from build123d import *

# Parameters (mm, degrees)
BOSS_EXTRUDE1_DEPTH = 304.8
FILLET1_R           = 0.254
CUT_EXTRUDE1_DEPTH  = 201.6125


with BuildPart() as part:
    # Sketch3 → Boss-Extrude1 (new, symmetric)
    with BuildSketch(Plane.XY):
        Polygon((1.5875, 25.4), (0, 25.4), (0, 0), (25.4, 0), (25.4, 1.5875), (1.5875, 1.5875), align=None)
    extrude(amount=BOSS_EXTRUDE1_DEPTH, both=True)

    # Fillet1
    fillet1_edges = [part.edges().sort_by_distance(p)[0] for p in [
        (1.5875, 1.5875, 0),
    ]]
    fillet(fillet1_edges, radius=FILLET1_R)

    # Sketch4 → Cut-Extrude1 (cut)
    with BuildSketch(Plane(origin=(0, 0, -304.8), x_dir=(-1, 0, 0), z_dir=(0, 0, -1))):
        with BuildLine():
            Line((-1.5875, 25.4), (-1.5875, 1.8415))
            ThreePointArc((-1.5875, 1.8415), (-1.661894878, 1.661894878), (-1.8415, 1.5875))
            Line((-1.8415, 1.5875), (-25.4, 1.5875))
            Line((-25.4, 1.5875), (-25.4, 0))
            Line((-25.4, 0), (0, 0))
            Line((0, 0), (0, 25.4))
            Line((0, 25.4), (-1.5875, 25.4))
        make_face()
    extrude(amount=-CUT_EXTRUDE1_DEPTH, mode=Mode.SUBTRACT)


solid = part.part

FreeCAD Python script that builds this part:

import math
import FreeCAD as App
import Part
import Sketcher

V = App.Vector
Q = App.Units.Quantity


def edges_at(feature, points):
    """Names of the edges that pass closest to the given points."""
    edges = feature.Shape.Edges
    near = lambda p: min(range(len(edges)), key=lambda i: edges[i].distToShape(Part.Vertex(*p))[0])
    return sorted({f"Edge{near(p) + 1}" for p in points})

doc = App.newDocument("Part")
body = doc.addObject("PartDesign::Body", "Body")

# Sketch on XY plane
sketch1 = body.newObject("Sketcher::SketchObject", "Sketch")
sketch1.AttachmentSupport = (doc.getObject("XY_Plane"), [""])
sketch1.MapMode = "FlatFace"
sketch1.addGeometry(Part.LineSegment(V(1.6, 25.4, 0), V(0, 25.4, 0)), False)
sketch1.addGeometry(Part.LineSegment(V(0, 25.4, 0), V(0, 0, 0)), False)
sketch1.addGeometry(Part.LineSegment(V(0, 0, 0), V(25.4, 0, 0)), False)
sketch1.addGeometry(Part.LineSegment(V(25.4, 0, 0), V(25.4, 1.6, 0)), False)
sketch1.addGeometry(Part.LineSegment(V(25.4, 1.6, 0), V(1.6, 1.6, 0)), False)
sketch1.addGeometry(Part.LineSegment(V(1.6, 1.6, 0), V(1.6, 25.4, 0)), False)
sketch1.addConstraint(Sketcher.Constraint("Coincident", 0, 2, 1, 1))
sketch1.addConstraint(Sketcher.Constraint("Coincident", 1, 2, 2, 1))
sketch1.addConstraint(Sketcher.Constraint("Coincident", 2, 2, 3, 1))
sketch1.addConstraint(Sketcher.Constraint("Coincident", 3, 2, 4, 1))
sketch1.addConstraint(Sketcher.Constraint("Coincident", 4, 2, 5, 1))
sketch1.addConstraint(Sketcher.Constraint("Coincident", 5, 2, 0, 1))
sketch1.addConstraint(Sketcher.Constraint("Horizontal", 0))
sketch1.addConstraint(Sketcher.Constraint("Vertical", 1))
sketch1.addConstraint(Sketcher.Constraint("Horizontal", 2))
sketch1.addConstraint(Sketcher.Constraint("Vertical", 3))
sketch1.addConstraint(Sketcher.Constraint("Horizontal", 4))
sketch1.addConstraint(Sketcher.Constraint("Vertical", 5))
sketch1.addConstraint(Sketcher.Constraint("Coincident", 1, 2, -1, 1))
sketch1.addConstraint(Sketcher.Constraint("Equal", 2, 1))
sketch1.addConstraint(Sketcher.Constraint("Equal", 0, 3))
sketch1.addConstraint(Sketcher.Constraint("DistanceX", 2, 1, 2, 2, Q("1 in")))
sketch1.addConstraint(Sketcher.Constraint("DistanceX", 0, 2, 0, 1, Q("0.0625 in")))
pad1 = body.newObject("PartDesign::Pad", "Pad")
pad1.Profile = sketch1
pad1.Length = Q("24 in")
pad1.Midplane = True
doc.recompute()

fillet = body.newObject("PartDesign::Fillet", "Fillet")
fillet.Base = (pad1, edges_at(pad1, [(1.587, 1.587, 0)]))
fillet.Radius = Q("0.01 in")

# Sketch on XY plane
sketch2 = body.newObject("Sketcher::SketchObject", "Sketch001")
sketch2.AttachmentSupport = (doc.getObject("XY_Plane"), [""])
sketch2.MapMode = "FlatFace"
sketch2.AttachmentOffset = App.Placement(V(0, 0, -12 * 25.4), App.Rotation())
sketch2.addGeometry(Part.LineSegment(V(1.59, 25.4, 0), V(1.59, 1.84, 0)), False)
sketch2.addGeometry(Part.ArcOfCircle(Part.Circle(V(1.84, 1.84, 0), V(0, 0, 1), 0.25), math.radians(-180), math.radians(-90)), False)
sketch2.addGeometry(Part.LineSegment(V(1.84, 1.59, 0), V(25.4, 1.59, 0)), False)
sketch2.addGeometry(Part.LineSegment(V(25.4, 1.59, 0), V(25.4, 0, 0)), False)
sketch2.addGeometry(Part.LineSegment(V(25.4, 0, 0), V(0, 0, 0)), False)
sketch2.addGeometry(Part.LineSegment(V(0, 0, 0), V(0, 25.4, 0)), False)
sketch2.addGeometry(Part.LineSegment(V(0, 25.4, 0), V(1.59, 25.4, 0)), False)
sketch2.addConstraint(Sketcher.Constraint("Tangent", 0, 2, 1, 1))
sketch2.addConstraint(Sketcher.Constraint("Tangent", 1, 2, 2, 1))
sketch2.addConstraint(Sketcher.Constraint("Coincident", 2, 2, 3, 1))
sketch2.addConstraint(Sketcher.Constraint("Coincident", 3, 2, 4, 1))
sketch2.addConstraint(Sketcher.Constraint("Coincident", 4, 2, 5, 1))
sketch2.addConstraint(Sketcher.Constraint("Coincident", 5, 2, 6, 1))
sketch2.addConstraint(Sketcher.Constraint("Coincident", 6, 2, 0, 1))
sketch2.addConstraint(Sketcher.Constraint("Vertical", 0))
sketch2.addConstraint(Sketcher.Constraint("Horizontal", 2))
sketch2.addConstraint(Sketcher.Constraint("Vertical", 3))
sketch2.addConstraint(Sketcher.Constraint("Horizontal", 4))
sketch2.addConstraint(Sketcher.Constraint("Vertical", 5))
sketch2.addConstraint(Sketcher.Constraint("Horizontal", 6))
sketch2.addConstraint(Sketcher.Constraint("Coincident", 4, 2, -1, 1))
sketch2.addConstraint(Sketcher.Constraint("Equal", 2, 0))
sketch2.addConstraint(Sketcher.Constraint("Equal", 6, 3))
sketch2.addConstraint(Sketcher.Constraint("DistanceX", 4, 2, 4, 1, Q("1 in")))
sketch2.addConstraint(Sketcher.Constraint("Radius", 1, Q("0.01 in")))
sketch2.addConstraint(Sketcher.Constraint("DistanceX", 6, 1, 6, 2, Q("0.0625 in")))
pocket1 = body.newObject("PartDesign::Pocket", "Pocket")
pocket1.Profile = sketch2
pocket1.Length = Q("7.9375 in")
pocket1.Reversed = True

doc.recompute()
